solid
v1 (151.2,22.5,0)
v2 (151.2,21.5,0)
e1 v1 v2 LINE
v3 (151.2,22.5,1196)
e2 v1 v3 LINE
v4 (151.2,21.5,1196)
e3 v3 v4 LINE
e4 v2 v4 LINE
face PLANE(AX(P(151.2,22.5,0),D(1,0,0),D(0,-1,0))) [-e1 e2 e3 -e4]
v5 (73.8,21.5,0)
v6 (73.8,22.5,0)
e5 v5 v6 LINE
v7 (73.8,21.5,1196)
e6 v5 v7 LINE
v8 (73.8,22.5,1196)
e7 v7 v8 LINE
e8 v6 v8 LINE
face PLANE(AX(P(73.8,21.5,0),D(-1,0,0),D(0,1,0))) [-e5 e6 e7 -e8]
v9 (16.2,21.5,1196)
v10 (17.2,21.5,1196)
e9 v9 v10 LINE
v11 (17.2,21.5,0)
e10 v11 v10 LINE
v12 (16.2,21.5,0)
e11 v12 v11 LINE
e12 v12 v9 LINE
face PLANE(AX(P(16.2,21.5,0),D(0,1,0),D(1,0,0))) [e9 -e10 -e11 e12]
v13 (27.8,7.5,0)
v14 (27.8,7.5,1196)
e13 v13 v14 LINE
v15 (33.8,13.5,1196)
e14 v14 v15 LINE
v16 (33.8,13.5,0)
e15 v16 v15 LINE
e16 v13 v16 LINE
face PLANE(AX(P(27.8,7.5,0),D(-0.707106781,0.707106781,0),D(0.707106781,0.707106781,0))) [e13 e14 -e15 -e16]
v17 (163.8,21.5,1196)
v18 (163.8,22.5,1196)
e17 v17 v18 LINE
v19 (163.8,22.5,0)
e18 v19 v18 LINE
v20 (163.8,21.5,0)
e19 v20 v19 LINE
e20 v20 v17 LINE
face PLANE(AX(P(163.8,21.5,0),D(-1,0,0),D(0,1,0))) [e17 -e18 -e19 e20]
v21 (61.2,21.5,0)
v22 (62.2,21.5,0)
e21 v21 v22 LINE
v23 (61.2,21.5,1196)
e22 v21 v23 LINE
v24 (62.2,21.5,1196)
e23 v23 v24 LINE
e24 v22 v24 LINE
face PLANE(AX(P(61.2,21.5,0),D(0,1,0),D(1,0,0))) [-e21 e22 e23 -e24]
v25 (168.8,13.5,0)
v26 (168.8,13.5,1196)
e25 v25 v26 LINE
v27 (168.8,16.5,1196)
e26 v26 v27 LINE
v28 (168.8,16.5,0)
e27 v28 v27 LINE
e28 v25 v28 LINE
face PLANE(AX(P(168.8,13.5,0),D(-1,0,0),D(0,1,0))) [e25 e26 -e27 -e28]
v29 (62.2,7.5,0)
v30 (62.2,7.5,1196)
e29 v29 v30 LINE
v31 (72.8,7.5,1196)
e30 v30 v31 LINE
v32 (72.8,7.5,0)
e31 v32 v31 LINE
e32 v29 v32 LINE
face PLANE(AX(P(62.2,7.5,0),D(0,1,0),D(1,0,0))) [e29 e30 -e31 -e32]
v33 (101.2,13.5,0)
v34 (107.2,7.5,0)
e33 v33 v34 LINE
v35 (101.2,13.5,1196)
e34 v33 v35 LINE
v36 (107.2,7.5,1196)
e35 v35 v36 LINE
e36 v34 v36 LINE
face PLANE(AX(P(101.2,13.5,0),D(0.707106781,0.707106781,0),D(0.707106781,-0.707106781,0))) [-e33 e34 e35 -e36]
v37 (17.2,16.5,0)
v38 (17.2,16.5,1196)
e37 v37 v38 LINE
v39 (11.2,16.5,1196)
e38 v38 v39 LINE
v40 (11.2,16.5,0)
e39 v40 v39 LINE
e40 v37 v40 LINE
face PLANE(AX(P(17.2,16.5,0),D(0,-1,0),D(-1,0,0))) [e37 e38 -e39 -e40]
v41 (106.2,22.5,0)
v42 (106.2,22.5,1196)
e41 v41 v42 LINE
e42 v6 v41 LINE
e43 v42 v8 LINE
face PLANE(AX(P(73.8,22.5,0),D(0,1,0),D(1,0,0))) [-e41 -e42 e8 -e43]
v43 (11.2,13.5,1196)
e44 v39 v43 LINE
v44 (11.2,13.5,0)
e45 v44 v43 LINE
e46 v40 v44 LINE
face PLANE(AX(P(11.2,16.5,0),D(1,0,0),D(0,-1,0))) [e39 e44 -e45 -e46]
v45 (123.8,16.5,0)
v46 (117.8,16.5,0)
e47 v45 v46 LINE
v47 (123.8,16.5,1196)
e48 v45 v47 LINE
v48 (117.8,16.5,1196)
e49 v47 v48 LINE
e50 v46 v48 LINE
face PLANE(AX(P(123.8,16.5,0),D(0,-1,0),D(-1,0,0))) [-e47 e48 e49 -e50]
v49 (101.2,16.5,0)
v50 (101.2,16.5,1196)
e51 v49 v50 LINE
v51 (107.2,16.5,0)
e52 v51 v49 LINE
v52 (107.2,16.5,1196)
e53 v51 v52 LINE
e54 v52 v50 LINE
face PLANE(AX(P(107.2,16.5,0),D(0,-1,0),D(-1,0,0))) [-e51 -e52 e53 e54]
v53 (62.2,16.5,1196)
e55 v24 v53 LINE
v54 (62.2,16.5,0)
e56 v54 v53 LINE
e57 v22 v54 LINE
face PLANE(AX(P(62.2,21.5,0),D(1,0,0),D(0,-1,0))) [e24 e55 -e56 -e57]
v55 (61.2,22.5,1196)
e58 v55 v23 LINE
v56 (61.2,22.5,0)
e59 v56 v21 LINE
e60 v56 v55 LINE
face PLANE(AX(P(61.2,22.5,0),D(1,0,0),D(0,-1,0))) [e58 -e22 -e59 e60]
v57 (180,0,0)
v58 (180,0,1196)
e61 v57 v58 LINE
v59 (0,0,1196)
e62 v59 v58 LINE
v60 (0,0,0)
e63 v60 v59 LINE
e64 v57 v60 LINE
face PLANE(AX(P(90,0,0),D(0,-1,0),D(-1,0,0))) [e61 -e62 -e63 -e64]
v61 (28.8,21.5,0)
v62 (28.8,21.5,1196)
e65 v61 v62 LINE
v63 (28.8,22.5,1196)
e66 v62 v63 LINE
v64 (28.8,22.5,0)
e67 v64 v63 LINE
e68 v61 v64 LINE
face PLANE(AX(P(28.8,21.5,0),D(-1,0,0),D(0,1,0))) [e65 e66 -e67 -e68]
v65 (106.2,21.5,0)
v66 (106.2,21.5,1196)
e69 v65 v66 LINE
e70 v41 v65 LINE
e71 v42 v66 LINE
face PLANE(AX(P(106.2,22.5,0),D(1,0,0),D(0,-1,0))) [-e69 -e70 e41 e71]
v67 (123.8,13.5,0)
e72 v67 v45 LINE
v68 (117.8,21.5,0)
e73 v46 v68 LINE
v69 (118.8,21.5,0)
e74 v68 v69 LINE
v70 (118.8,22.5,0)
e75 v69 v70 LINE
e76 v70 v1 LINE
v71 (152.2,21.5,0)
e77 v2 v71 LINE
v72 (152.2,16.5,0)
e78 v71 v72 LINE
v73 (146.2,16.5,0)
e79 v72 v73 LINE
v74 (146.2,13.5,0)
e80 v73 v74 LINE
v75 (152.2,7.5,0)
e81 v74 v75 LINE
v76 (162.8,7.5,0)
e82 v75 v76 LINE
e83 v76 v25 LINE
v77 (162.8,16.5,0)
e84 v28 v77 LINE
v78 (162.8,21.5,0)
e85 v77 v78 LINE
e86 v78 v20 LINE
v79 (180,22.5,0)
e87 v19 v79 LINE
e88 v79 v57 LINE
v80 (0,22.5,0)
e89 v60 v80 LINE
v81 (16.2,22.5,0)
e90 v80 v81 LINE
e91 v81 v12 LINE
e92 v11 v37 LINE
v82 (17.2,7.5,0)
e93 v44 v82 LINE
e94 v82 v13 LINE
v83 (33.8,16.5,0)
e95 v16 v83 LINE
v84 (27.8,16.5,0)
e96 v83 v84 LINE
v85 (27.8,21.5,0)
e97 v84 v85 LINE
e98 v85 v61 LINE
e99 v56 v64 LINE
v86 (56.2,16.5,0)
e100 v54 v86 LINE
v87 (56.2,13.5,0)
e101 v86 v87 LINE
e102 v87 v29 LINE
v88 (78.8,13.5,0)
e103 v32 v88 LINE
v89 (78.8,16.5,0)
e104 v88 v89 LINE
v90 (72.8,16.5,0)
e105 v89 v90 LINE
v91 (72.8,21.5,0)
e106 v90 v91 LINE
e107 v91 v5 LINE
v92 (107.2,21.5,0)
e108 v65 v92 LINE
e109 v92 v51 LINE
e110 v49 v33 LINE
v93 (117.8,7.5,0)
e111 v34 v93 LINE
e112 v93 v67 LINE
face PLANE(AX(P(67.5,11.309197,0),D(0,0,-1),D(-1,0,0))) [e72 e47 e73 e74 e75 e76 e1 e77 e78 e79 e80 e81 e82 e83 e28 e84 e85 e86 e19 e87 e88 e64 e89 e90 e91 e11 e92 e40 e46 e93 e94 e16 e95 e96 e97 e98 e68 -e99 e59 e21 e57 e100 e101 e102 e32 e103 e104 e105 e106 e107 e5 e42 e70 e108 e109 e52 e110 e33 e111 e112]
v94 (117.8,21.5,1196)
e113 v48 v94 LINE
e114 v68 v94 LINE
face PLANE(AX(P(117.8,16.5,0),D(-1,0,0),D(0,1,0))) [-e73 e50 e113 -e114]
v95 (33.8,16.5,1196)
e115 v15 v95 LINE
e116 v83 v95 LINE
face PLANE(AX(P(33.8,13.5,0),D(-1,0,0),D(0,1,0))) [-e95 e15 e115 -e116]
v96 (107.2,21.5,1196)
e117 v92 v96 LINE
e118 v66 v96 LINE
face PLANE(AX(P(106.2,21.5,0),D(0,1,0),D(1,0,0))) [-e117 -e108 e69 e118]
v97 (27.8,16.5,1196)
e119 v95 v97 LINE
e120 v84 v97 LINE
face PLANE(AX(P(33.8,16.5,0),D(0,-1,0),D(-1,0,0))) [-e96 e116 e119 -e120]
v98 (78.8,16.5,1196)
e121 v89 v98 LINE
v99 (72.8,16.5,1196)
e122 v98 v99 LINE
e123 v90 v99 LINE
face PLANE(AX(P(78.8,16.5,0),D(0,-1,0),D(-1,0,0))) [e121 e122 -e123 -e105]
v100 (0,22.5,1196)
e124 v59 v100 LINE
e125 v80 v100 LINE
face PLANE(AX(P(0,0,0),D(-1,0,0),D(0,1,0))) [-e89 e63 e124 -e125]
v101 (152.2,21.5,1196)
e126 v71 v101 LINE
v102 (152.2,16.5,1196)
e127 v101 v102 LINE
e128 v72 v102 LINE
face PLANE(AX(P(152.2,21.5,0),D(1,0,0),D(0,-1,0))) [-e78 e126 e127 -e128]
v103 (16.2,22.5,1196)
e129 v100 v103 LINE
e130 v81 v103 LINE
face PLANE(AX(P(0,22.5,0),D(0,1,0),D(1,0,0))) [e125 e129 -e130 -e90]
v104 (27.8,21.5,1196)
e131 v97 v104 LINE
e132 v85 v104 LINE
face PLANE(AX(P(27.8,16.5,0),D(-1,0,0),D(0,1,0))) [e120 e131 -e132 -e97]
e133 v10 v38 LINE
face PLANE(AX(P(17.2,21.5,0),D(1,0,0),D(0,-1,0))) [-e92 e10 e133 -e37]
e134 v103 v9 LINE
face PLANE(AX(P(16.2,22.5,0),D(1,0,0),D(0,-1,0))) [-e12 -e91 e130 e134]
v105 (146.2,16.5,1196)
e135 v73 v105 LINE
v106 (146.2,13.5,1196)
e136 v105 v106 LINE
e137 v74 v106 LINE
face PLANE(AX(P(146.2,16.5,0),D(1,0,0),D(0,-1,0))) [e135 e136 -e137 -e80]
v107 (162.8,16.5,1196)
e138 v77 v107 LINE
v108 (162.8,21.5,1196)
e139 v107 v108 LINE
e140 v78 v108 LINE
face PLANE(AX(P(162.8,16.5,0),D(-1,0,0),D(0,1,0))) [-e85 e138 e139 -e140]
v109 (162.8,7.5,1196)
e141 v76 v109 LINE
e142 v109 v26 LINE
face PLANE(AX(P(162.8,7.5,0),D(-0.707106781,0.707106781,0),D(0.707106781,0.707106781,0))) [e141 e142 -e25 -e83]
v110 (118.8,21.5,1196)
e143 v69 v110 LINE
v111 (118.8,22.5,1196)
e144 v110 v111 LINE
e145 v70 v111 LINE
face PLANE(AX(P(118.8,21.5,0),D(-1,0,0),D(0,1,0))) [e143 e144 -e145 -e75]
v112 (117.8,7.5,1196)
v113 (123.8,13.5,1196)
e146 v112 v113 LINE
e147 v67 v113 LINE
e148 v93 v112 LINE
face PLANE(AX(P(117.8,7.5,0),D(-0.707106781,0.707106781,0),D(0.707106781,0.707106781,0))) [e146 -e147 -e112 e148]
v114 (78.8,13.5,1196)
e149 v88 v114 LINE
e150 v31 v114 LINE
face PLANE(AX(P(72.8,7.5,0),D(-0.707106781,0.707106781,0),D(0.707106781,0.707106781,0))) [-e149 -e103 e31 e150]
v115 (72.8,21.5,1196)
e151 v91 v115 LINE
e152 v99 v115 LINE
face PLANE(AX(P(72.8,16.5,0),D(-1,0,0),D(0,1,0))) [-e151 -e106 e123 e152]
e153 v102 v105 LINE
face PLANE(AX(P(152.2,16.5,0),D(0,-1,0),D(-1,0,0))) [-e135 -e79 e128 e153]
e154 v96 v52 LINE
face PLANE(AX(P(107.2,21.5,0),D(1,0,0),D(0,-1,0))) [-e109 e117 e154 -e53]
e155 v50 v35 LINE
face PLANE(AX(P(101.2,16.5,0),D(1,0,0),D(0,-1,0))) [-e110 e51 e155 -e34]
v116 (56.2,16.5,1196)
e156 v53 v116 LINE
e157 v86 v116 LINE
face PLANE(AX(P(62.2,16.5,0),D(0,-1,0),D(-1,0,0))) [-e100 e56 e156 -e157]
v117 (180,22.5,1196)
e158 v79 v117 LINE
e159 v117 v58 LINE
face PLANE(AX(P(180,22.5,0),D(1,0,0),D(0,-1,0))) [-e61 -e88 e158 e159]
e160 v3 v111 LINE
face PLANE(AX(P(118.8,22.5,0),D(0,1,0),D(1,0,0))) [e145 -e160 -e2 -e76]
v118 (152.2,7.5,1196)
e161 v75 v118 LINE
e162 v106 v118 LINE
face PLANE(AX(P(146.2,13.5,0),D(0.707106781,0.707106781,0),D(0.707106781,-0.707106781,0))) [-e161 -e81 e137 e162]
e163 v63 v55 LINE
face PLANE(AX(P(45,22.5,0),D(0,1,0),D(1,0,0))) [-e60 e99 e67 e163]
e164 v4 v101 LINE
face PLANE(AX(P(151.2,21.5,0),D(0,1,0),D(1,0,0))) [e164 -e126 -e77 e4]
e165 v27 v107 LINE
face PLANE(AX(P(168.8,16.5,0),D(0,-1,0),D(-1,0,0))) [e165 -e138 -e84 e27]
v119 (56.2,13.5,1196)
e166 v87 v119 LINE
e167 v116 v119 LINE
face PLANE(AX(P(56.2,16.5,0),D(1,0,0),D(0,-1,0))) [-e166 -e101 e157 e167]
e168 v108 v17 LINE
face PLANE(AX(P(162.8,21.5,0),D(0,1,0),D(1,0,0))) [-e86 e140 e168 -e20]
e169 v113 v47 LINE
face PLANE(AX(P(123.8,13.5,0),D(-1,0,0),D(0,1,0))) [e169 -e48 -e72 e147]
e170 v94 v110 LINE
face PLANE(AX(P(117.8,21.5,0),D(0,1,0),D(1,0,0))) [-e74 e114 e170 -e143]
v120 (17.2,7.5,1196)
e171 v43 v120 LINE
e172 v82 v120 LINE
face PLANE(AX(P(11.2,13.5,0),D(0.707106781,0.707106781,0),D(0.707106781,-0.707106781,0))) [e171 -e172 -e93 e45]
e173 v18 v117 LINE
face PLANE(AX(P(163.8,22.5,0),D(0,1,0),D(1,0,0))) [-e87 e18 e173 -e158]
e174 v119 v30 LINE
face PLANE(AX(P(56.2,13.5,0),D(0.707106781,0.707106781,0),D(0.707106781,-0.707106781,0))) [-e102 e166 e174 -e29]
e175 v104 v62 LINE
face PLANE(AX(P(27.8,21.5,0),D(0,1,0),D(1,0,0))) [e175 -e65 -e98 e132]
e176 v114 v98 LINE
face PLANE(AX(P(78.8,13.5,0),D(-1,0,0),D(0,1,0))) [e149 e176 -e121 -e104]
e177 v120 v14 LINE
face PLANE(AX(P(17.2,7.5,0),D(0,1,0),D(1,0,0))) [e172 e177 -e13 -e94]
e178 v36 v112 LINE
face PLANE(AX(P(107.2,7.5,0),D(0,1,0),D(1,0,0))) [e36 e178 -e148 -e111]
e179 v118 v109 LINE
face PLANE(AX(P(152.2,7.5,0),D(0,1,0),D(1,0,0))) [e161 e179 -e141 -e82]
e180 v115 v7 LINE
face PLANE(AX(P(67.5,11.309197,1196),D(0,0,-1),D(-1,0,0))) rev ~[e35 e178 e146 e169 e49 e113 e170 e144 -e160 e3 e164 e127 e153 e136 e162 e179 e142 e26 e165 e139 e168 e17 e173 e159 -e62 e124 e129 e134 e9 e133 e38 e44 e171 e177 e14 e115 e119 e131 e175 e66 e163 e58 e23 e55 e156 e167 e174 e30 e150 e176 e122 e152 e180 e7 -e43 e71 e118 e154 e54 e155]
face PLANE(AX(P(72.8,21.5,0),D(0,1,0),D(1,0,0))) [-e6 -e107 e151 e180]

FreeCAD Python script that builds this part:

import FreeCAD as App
import Part
import Sketcher

V = App.Vector

doc = App.newDocument("Part")
body = doc.addObject("PartDesign::Body", "Body")

sketch1 = body.newObject("Sketcher::SketchObject", "Sketch")
sketch1.AttachmentSupport = (doc.getObject("XY_Plane"), [""])
sketch1.MapMode = "FlatFace"
sketch1.addGeometry(Part.LineSegment(V(16.2, 22.5, 0), V(0, 22.5, 0)), False)
sketch1.addGeometry(Part.LineSegment(V(0, 22.5, 0), V(0, 0, 0)), False)
sketch1.addGeometry(Part.LineSegment(V(0, 0, 0), V(45, 0, 0)), False)
sketch1.addGeometry(Part.LineSegment(V(45, 0, 0), V(45, 22.5, 0)), False)
sketch1.addGeometry(Part.LineSegment(V(45, 22.5, 0), V(28.8, 22.5, 0)), False)
sketch1.addGeometry(Part.LineSegment(V(28.8, 22.5, 0), V(28.8, 21.5, 0)), False)
sketch1.addGeometry(Part.LineSegment(V(28.8, 21.5, 0), V(27.8, 21.5, 0)), False)
sketch1.addGeometry(Part.LineSegment(V(27.8, 21.5, 0), V(27.8, 16.5, 0)), False)
sketch1.addGeometry(Part.LineSegment(V(27.8, 16.5, 0), V(33.8, 16.5, 0)), False)
sketch1.addGeometry(Part.LineSegment(V(33.8, 16.5, 0), V(33.8, 13.5, 0)), False)
sketch1.addGeometry(Part.LineSegment(V(33.8, 13.5, 0), V(27.8, 7.5, 0)), False)
sketch1.addGeometry(Part.LineSegment(V(27.8, 7.5, 0), V(17.2, 7.5, 0)), False)
sketch1.addGeometry(Part.LineSegment(V(17.2, 7.5, 0), V(11.2, 13.5, 0)), False)
sketch1.addGeometry(Part.LineSegment(V(11.2, 13.5, 0), V(11.2, 16.5, 0)), False)
sketch1.addGeometry(Part.LineSegment(V(11.2, 16.5, 0), V(17.2, 16.5, 0)), False)
sketch1.addGeometry(Part.LineSegment(V(17.2, 16.5, 0), V(17.2, 21.5, 0)), False)
sketch1.addGeometry(Part.LineSegment(V(17.2, 21.5, 0), V(16.2, 21.5, 0)), False)
sketch1.addGeometry(Part.LineSegment(V(16.2, 21.5, 0), V(16.2, 22.5, 0)), False)
sketch1.addConstraint(Sketcher.Constraint("Coincident", 0, 2, 1, 1))
sketch1.addConstraint(Sketcher.Constraint("Coincident", 1, 2, 2, 1))
sketch1.addConstraint(Sketcher.Constraint("Coincident", 2, 2, 3, 1))
sketch1.addConstraint(Sketcher.Constraint("Coincident", 3, 2, 4, 1))
sketch1.addConstraint(Sketcher.Constraint("Coincident", 4, 2, 5, 1))
sketch1.addConstraint(Sketcher.Constraint("Coincident", 5, 2, 6, 1))
sketch1.addConstraint(Sketcher.Constraint("Coincident", 6, 2, 7, 1))
sketch1.addConstraint(Sketcher.Constraint("Coincident", 7, 2, 8, 1))
sketch1.addConstraint(Sketcher.Constraint("Coincident", 8, 2, 9, 1))
sketch1.addConstraint(Sketcher.Constraint("Coincident", 9, 2, 10, 1))
sketch1.addConstraint(Sketcher.Constraint("Coincident", 10, 2, 11, 1))
sketch1.addConstraint(Sketcher.Constraint("Coincident", 11, 2, 12, 1))
sketch1.addConstraint(Sketcher.Constraint("Coincident", 12, 2, 13, 1))
sketch1.addConstraint(Sketcher.Constraint("Coincident", 13, 2, 14, 1))
sketch1.addConstraint(Sketcher.Constraint("Coincident", 14, 2, 15, 1))
sketch1.addConstraint(Sketcher.Constraint("Coincident", 15, 2, 16, 1))
sketch1.addConstraint(Sketcher.Constraint("Coincident", 16, 2, 17, 1))
sketch1.addConstraint(Sketcher.Constraint("Coincident", 17, 2, 0, 1))
sketch1.addConstraint(Sketcher.Constraint("Horizontal", 0))
sketch1.addConstraint(Sketcher.Constraint("Vertical", 1))
sketch1.addConstraint(Sketcher.Constraint("Horizontal", 2))
sketch1.addConstraint(Sketcher.Constraint("Vertical", 3))
sketch1.addConstraint(Sketcher.Constraint("Horizontal", 4))
sketch1.addConstraint(Sketcher.Constraint("Vertical", 5))
sketch1.addConstraint(Sketcher.Constraint("Horizontal", 6))
sketch1.addConstraint(Sketcher.Constraint("Vertical", 7))
sketch1.addConstraint(Sketcher.Constraint("Horizontal", 8))
sketch1.addConstraint(Sketcher.Constraint("Vertical", 9))
sketch1.addConstraint(Sketcher.Constraint("Horizontal", 11))
sketch1.addConstraint(Sketcher.Constraint("Vertical", 13))
sketch1.addConstraint(Sketcher.Constraint("Horizontal", 14))
sketch1.addConstraint(Sketcher.Constraint("Vertical", 15))
sketch1.addConstraint(Sketcher.Constraint("Horizontal", 16))
sketch1.addConstraint(Sketcher.Constraint("Vertical", 17))
sketch1.addConstraint(Sketcher.Constraint("Coincident", 1, 2, -1, 1))
sketch1.addConstraint(Sketcher.Constraint("Perpendicular", 10, 12))
sketch1.addConstraint(Sketcher.Constraint("Horizontal", 0, 2, 3, 2))
sketch1.addConstraint(Sketcher.Constraint("Horizontal", 9, 2, 12, 2))
sketch1.addConstraint(Sketcher.Constraint("Horizontal", 8, 2, 13, 2))
sketch1.addConstraint(Sketcher.Constraint("Horizontal", 6, 2, 15, 2))
sketch1.addConstraint(Sketcher.Constraint("Vertical", 7, 2, 10, 2))
sketch1.addConstraint(Sketcher.Constraint("Vertical", 11, 2, 14, 2))
sketch1.addConstraint(Sketcher.Constraint("Equal", 0, 4))
sketch1.addConstraint(Sketcher.Constraint("Equal", 8, 14))
sketch1.addConstraint(Sketcher.Constraint("Equal", 6, 16))
sketch1.addConstraint(Sketcher.Constraint("Equal", 16, 5))
sketch1.addConstraint(Sketcher.Constraint("DistanceX", 2, 1, 2, 2, 45.0))
sketch1.addConstraint(Sketcher.Constraint("DistanceX", 6, 2, 6, 1, 1.0))
sketch1.addConstraint(Sketcher.Constraint("DistanceX", 8, 1, 8, 2, 6.0))
sketch1.addConstraint(Sketcher.Constraint("DistanceY", 7, 2, 7, 1, 5.0))
sketch1.addConstraint(Sketcher.Constraint("DistanceY", 9, 2, 9, 1, 3.0))
sketch1.addConstraint(Sketcher.Constraint("DistanceX", 0, 2, 0, 1, 16.2))
sketch1.addConstraint(Sketcher.Constraint("DistanceY", 1, 2, 1, 1, 22.5))
pad1 = body.newObject("PartDesign::Pad", "Pad")
pad1.Profile = sketch1
pad1.Length = 1196
doc.recompute()

linearpattern = body.newObject("PartDesign::LinearPattern", "LinearPattern")
linearpattern.Originals = [pad1]
linearpattern.Direction = (doc.getObject("X_Axis"), [""])
linearpattern.Mode = "offset"
linearpattern.Offset = 45
linearpattern.Occurrences = 4
body.Tip = linearpattern

doc.recompute()
